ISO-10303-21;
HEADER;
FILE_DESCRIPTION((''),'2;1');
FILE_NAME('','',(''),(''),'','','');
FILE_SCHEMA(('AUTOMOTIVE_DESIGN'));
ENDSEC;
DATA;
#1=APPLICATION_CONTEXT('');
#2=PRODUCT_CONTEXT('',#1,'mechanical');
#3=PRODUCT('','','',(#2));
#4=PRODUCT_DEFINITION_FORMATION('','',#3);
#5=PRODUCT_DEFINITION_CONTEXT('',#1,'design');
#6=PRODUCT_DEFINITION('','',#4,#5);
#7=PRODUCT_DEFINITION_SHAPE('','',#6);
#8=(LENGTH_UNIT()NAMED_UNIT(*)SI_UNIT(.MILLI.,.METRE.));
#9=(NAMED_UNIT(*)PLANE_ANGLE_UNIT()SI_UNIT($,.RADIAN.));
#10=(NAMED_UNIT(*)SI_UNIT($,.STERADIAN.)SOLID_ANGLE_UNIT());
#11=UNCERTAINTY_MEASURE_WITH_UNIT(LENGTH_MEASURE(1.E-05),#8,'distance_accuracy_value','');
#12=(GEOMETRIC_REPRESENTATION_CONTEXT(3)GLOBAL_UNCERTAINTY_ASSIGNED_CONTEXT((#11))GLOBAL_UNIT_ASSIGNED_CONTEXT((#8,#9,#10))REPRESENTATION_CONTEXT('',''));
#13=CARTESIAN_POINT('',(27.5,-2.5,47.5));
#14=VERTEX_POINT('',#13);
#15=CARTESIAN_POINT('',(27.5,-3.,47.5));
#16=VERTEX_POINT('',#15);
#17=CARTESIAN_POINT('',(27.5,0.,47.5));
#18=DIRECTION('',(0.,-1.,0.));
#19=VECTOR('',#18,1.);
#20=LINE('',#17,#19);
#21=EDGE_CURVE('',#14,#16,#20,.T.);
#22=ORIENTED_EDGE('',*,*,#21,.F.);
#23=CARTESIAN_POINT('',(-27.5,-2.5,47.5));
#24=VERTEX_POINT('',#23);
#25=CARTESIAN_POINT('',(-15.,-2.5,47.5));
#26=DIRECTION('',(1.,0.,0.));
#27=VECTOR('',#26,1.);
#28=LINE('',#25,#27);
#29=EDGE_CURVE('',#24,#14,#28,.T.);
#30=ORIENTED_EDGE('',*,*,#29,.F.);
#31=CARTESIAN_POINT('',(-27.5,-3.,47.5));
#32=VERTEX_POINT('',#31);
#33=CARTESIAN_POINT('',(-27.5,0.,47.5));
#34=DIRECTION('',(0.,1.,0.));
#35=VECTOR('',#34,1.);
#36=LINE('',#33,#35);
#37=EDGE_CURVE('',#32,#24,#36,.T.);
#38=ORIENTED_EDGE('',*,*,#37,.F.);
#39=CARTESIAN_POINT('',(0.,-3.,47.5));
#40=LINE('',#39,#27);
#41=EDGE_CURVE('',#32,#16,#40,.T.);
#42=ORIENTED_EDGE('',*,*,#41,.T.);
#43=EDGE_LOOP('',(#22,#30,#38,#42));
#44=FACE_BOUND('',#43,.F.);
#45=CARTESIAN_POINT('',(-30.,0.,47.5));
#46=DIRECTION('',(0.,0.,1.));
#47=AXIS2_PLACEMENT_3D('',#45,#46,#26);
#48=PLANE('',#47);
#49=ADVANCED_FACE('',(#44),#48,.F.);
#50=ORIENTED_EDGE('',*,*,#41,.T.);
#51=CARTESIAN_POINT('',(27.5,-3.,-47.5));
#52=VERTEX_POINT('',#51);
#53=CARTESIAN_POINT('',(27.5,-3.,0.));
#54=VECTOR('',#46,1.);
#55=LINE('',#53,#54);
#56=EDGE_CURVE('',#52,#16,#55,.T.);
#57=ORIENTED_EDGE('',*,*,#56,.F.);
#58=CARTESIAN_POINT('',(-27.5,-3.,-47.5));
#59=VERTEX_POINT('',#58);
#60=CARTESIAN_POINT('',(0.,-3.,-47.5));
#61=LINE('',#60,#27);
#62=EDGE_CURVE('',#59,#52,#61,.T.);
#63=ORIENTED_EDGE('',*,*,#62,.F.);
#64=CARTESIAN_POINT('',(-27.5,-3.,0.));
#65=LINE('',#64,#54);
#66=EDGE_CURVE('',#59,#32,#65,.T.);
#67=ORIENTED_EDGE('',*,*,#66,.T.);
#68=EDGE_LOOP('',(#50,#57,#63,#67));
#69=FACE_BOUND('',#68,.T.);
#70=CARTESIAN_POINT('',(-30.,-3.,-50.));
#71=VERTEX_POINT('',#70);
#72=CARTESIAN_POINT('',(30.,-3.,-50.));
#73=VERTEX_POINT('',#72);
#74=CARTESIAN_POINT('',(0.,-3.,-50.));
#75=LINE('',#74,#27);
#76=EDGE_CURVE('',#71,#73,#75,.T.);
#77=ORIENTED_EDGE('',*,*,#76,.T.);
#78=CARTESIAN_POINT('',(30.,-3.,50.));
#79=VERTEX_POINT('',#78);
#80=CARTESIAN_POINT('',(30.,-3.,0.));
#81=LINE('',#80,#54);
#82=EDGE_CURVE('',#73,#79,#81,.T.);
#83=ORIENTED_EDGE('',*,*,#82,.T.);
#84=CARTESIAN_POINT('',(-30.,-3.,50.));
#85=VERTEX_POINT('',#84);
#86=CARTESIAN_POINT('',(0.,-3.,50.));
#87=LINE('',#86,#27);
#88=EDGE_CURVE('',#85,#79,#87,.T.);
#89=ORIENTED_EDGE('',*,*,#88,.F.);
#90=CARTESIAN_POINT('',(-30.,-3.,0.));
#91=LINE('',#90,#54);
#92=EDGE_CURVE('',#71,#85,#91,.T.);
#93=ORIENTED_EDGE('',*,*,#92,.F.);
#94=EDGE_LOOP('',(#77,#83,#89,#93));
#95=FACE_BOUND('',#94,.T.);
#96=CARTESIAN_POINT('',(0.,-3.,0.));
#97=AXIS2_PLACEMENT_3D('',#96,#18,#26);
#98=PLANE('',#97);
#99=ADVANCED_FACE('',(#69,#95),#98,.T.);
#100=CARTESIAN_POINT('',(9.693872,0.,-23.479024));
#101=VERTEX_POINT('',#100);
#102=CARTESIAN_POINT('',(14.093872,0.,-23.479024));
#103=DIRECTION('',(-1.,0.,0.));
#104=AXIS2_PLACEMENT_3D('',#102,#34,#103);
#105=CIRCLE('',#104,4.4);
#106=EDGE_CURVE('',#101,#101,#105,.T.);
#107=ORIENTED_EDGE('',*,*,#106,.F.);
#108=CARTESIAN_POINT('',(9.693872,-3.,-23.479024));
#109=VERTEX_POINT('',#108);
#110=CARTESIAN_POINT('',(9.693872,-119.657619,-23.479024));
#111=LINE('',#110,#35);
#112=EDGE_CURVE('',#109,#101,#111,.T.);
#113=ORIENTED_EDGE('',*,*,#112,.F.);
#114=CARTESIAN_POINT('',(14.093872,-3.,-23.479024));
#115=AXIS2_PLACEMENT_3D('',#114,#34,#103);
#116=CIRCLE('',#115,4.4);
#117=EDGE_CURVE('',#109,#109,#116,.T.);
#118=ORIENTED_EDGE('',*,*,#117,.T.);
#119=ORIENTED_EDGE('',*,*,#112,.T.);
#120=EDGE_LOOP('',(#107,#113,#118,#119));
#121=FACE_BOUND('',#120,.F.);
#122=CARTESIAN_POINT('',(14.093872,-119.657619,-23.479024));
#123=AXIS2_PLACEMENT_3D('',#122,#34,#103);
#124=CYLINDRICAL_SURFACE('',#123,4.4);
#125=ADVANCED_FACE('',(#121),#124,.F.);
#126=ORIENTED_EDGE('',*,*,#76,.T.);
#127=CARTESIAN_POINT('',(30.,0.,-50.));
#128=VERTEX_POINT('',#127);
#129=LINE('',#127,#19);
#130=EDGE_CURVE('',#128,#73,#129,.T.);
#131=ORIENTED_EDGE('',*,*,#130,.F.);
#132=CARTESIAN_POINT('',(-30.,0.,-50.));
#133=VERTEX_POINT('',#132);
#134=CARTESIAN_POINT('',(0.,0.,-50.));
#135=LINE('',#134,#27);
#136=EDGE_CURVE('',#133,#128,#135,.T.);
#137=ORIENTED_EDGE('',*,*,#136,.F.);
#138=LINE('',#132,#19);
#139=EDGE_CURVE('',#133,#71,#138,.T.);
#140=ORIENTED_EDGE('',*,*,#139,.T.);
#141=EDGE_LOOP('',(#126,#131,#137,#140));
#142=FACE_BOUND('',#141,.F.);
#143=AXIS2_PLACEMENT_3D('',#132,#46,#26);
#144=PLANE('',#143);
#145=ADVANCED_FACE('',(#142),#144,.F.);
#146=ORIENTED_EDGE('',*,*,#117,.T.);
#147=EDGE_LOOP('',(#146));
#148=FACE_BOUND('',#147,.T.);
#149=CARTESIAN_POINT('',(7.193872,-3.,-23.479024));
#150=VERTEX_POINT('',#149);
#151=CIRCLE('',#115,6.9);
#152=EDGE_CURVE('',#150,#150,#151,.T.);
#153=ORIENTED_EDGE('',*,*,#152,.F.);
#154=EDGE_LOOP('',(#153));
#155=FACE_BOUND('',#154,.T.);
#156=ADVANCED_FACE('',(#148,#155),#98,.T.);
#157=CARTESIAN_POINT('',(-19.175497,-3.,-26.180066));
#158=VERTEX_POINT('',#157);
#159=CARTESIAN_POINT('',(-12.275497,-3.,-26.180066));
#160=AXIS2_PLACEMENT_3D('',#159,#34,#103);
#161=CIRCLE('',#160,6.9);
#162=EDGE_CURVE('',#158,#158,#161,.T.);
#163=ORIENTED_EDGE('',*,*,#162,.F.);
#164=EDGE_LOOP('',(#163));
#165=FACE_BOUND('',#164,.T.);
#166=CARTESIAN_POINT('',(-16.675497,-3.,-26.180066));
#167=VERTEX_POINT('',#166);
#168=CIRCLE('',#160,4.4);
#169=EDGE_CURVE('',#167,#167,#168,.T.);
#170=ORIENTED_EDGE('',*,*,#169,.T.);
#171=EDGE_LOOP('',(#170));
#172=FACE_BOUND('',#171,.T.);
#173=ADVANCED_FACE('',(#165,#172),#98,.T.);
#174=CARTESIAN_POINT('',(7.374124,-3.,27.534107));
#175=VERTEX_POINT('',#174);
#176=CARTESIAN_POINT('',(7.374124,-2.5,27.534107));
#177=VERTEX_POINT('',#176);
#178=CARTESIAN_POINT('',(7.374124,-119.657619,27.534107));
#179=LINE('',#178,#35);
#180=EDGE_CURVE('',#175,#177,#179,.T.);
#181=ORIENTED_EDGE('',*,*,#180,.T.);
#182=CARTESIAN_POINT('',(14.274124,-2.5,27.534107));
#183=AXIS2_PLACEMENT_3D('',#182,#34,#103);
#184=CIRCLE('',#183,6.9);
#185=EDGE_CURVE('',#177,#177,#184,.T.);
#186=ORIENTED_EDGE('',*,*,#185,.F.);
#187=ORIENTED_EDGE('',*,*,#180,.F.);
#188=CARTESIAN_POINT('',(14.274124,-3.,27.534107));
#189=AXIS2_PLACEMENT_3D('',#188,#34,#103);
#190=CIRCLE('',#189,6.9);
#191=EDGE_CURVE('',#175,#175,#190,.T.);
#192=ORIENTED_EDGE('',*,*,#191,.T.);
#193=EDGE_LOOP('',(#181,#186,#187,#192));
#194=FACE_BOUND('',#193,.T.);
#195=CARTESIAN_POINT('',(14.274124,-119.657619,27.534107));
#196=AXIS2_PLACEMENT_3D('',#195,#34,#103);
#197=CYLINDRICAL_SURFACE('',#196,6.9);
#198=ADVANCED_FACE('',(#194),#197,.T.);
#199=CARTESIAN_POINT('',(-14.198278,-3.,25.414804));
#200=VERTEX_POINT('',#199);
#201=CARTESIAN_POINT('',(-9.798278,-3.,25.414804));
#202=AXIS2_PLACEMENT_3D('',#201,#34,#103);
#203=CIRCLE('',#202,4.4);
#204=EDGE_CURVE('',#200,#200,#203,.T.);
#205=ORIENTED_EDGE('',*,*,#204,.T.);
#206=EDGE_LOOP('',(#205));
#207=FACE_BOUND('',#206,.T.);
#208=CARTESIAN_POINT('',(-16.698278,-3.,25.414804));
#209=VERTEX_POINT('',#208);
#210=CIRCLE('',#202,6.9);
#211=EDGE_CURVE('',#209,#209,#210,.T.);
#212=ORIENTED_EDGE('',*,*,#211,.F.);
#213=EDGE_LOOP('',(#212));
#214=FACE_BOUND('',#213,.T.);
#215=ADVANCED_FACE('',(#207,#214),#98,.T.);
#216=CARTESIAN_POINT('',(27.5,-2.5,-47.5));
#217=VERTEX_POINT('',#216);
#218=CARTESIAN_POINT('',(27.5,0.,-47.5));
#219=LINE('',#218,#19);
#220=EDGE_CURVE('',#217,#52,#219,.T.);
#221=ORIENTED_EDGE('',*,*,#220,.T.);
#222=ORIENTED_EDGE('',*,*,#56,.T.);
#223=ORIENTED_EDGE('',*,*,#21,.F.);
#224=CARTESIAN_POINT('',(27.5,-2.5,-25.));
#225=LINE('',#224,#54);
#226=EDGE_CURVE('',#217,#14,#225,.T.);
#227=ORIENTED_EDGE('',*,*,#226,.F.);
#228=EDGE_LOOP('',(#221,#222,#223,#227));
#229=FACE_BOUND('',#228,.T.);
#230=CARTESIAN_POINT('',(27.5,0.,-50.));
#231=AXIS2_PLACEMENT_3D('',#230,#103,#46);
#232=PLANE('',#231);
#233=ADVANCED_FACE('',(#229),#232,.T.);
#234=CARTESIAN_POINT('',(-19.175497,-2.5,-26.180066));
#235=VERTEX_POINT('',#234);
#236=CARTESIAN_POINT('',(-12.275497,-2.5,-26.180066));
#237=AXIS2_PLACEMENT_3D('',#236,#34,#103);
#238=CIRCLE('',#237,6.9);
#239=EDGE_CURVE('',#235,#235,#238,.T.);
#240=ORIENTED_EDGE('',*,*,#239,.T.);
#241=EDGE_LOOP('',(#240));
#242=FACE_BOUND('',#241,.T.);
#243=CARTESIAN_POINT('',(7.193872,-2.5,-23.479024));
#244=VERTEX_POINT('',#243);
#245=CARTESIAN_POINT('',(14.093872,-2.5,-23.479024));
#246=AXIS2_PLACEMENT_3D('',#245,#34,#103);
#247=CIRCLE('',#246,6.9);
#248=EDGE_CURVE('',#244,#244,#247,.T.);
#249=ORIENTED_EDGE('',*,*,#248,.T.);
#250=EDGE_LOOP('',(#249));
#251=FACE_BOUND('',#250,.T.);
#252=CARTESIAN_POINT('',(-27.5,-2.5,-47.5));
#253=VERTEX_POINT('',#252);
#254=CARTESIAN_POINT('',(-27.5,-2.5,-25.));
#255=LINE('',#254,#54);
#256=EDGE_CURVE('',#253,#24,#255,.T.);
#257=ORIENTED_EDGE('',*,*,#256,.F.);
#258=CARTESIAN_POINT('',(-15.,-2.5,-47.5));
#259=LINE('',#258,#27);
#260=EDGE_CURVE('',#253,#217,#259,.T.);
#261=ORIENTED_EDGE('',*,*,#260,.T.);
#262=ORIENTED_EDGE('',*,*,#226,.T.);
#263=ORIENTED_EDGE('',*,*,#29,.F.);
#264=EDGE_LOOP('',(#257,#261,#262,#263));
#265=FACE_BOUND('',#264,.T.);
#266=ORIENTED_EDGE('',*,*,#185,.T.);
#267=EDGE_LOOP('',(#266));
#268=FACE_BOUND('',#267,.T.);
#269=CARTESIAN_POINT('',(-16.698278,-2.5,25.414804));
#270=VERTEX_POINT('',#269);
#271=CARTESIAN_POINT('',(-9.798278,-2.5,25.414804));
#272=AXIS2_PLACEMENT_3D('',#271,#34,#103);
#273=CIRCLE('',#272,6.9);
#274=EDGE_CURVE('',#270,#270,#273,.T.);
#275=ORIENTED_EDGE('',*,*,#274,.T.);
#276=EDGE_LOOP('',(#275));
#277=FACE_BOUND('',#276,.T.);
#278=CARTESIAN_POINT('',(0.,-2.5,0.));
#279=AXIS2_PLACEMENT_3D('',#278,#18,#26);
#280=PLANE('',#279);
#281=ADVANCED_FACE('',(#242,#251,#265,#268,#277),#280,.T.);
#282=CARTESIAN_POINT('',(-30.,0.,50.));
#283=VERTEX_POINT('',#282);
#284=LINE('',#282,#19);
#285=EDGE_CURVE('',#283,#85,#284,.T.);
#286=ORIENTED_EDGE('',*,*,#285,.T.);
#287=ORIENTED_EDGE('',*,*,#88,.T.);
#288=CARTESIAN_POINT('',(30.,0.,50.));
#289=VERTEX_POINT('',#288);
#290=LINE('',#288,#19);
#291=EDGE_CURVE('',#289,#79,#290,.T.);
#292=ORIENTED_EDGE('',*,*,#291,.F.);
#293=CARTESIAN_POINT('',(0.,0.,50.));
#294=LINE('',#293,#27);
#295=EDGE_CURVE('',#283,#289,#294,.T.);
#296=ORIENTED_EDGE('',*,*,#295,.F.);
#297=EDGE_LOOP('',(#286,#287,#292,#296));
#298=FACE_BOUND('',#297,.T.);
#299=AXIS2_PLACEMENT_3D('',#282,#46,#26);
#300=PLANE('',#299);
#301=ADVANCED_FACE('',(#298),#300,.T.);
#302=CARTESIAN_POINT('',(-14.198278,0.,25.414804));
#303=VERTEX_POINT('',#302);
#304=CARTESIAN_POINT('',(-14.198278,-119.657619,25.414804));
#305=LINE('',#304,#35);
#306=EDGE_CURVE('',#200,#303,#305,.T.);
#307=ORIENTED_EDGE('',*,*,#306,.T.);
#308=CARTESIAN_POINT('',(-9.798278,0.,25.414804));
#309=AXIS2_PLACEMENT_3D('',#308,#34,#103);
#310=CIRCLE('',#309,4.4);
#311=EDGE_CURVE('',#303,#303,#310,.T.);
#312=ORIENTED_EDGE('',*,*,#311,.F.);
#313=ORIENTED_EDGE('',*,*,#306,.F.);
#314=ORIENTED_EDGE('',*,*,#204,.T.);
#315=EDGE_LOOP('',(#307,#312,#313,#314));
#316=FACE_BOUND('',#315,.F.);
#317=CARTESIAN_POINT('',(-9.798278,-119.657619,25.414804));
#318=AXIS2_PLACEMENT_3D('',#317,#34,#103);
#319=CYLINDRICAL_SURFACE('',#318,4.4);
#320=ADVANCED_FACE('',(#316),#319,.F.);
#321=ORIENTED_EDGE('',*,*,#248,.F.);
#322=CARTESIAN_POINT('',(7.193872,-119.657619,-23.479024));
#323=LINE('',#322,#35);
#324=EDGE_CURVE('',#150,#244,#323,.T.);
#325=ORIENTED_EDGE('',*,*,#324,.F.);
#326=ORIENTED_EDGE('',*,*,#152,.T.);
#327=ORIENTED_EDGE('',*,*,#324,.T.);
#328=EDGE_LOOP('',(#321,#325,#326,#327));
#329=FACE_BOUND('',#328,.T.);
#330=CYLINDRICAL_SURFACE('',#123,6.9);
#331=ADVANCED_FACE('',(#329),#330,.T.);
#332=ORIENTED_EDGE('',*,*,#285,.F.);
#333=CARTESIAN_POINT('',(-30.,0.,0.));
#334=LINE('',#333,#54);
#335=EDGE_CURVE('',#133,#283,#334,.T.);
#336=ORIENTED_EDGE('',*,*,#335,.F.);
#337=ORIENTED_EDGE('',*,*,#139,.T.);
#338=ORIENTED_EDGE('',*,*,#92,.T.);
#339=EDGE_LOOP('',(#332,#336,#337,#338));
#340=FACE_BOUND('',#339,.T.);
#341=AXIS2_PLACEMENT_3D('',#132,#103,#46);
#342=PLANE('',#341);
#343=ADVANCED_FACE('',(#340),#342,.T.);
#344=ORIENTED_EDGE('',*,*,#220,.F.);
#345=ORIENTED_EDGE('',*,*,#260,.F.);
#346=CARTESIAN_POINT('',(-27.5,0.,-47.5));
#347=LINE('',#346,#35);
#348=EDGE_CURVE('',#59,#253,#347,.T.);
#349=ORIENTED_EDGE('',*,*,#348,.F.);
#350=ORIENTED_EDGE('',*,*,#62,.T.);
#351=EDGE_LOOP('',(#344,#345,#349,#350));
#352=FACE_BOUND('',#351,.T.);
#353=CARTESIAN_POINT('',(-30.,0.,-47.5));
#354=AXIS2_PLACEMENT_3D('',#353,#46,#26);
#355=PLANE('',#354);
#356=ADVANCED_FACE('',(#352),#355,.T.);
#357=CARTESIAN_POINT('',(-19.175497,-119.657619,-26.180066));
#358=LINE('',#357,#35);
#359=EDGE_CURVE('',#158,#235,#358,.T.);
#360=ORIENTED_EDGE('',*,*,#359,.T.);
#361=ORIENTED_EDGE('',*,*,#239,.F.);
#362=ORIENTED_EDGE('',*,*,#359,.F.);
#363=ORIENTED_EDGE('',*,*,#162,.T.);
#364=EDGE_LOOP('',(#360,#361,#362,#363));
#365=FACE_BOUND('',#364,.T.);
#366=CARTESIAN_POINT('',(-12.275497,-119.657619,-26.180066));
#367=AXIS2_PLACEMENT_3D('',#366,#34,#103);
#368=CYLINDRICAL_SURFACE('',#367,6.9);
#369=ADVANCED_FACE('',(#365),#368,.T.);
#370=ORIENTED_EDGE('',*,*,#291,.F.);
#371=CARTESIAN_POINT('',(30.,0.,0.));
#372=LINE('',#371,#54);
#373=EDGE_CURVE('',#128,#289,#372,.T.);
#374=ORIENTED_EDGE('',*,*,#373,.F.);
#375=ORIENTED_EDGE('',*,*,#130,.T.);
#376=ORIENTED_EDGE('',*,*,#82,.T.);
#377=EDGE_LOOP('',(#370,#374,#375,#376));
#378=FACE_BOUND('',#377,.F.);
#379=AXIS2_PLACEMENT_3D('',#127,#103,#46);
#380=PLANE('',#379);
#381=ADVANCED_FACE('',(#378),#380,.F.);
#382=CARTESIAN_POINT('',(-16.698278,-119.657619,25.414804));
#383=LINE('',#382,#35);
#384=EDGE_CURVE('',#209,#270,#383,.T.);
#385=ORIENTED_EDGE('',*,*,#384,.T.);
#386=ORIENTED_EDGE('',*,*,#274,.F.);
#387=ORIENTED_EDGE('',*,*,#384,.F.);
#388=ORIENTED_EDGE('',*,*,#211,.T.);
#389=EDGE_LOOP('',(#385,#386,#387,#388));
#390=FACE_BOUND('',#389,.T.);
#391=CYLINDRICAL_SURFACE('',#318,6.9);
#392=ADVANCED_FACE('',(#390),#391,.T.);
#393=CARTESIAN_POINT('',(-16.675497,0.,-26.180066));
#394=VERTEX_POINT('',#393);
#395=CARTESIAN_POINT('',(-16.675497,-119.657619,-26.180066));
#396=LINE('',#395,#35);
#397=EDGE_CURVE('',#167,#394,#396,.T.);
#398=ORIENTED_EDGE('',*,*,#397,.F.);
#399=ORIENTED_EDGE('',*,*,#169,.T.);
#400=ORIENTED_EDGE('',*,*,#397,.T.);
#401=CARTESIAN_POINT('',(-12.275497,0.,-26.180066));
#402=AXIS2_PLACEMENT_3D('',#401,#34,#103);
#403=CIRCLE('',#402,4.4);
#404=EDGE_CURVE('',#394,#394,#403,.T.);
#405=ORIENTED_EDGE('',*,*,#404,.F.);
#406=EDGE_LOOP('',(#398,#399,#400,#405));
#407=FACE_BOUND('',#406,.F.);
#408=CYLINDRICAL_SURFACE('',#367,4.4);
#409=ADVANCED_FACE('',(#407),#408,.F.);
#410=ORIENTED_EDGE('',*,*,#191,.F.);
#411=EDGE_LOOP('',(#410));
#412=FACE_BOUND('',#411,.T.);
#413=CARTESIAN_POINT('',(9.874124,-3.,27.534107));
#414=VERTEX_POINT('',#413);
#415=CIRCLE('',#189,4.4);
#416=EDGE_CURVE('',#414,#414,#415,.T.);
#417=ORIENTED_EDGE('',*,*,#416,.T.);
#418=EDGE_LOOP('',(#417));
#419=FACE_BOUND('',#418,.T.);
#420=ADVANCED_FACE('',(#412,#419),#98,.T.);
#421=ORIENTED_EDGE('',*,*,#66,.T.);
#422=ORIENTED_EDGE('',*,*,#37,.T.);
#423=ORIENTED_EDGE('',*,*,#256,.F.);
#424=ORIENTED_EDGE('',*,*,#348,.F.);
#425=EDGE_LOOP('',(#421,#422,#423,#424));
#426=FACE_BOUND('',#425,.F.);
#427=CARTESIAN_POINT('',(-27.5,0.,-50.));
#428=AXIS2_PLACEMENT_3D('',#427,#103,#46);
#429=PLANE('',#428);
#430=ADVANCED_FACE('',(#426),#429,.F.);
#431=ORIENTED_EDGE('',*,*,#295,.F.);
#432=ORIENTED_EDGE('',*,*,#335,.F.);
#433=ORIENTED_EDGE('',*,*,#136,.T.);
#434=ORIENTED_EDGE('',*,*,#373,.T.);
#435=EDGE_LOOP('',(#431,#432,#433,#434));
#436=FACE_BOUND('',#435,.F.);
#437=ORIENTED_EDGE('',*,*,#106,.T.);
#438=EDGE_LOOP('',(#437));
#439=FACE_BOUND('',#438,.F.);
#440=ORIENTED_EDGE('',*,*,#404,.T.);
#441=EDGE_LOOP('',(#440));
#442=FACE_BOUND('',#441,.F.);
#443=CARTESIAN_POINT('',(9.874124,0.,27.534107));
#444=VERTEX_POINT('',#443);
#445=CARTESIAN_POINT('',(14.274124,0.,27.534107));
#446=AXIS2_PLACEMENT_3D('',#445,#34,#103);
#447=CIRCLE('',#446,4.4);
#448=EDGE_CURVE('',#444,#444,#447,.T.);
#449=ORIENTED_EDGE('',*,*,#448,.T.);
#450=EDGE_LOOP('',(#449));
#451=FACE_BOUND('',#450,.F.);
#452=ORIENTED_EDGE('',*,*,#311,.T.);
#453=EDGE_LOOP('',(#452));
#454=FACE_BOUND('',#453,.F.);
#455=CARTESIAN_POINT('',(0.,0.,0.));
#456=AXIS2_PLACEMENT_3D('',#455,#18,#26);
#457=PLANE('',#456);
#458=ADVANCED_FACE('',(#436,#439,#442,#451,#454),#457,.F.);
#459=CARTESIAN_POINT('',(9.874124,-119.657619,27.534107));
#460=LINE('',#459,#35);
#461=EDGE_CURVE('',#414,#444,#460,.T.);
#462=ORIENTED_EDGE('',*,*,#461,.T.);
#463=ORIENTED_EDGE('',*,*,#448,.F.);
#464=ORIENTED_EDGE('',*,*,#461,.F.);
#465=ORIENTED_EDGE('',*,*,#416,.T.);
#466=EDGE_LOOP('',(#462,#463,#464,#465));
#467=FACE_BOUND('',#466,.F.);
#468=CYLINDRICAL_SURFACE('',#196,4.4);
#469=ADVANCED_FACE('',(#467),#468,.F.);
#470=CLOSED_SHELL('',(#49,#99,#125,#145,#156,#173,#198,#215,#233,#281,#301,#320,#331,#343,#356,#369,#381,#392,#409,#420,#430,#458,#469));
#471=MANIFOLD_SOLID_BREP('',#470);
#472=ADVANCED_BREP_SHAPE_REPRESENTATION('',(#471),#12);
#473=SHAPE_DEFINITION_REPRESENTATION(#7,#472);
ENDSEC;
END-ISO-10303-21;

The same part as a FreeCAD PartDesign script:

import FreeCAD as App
import Part
import Sketcher
Q = App.Units.Quantity


def faces_at(feature, points):
    """Names of the faces that lie closest to the given points."""
    faces = feature.Shape.Faces
    near = lambda p: min(range(len(faces)), key=lambda i: faces[i].distToShape(Part.Vertex(*p))[0])
    return sorted({f"Face{near(p) + 1}" for p in points})

doc = App.newDocument("Part")
body = doc.addObject("PartDesign::Body", "Body")

sketch1 = doc.addObject("Sketcher::SketchObject", "Sketch")
body.addObject(sketch1)
sketch1.AttachmentSupport = (doc.XZ_Plane, [""])
sketch1.MapMode = "FlatFace"
sketch1.addGeometry([
    Part.LineSegment(App.Vector(-30, 50, 0), App.Vector(-30, -50, 0)),
    Part.LineSegment(App.Vector(-30, -50, 0), App.Vector(30, -50, 0)),
    Part.LineSegment(App.Vector(30, -50, 0), App.Vector(30, 50, 0)),
    Part.LineSegment(App.Vector(30, 50, 0), App.Vector(-30, 50, 0)),
], False)
sketch1.addConstraint([
    Sketcher.Constraint("Coincident", 0, 2, 1, 1),
    Sketcher.Constraint("Coincident", 1, 2, 2, 1),
    Sketcher.Constraint("Coincident", 2, 2, 3, 1),
    Sketcher.Constraint("Coincident", 3, 2, 0, 1),
    Sketcher.Constraint("Vertical", 0),
    Sketcher.Constraint("Horizontal", 1),
    Sketcher.Constraint("Vertical", 2),
    Sketcher.Constraint("Horizontal", 3),
    Sketcher.Constraint("Symmetric", 0, 2, 2, 2, -1, 1),
    Sketcher.Constraint("DistanceX", 1, 1, 1, 2, Q("60 mm")),
    Sketcher.Constraint("DistanceY", 0, 2, 0, 1, Q("100 mm")),
])
pad1 = doc.addObject("PartDesign::Pad", "Pad")
body.addObject(pad1)
pad1.Profile = sketch1
pad1.Length = 3

sketch2 = doc.addObject("Sketcher::SketchObject", "Sketch001")
body.addObject(sketch2)
sketch2.AttachmentSupport = (doc.XZ_Plane, [""])
sketch2.MapMode = "FlatFace"
sketch2.AttachmentOffset = App.Placement(App.Vector(0, 0, 3), App.Rotation())
sketch2.addGeometry([
    Part.Circle(App.Vector(-9.8, 25.4, 0), App.Vector(0, 0, 1), 4.4),
    Part.Circle(App.Vector(14.3, 27.5, 0), App.Vector(0, 0, 1), 4.4),
    Part.Circle(App.Vector(14.1, -23.5, 0), App.Vector(0, 0, 1), 4.4),
    Part.Circle(App.Vector(-12.3, -26.2, 0), App.Vector(0, 0, 1), 4.4),
], False)
sketch2.addConstraint([
    Sketcher.Constraint("Equal", 0, 1),
    Sketcher.Constraint("Equal", 1, 2),
    Sketcher.Constraint("Equal", 2, 3),
    Sketcher.Constraint("Diameter", 0, Q("8.8 mm")),
    Sketcher.Constraint("DistanceX", 0, 3, -1, 1, Q("9.798278 mm")),
    Sketcher.Constraint("DistanceX", 2, 3, 1, 3, Q("0.180252 mm")),
    Sketcher.Constraint("DistanceY", 2, 3, 1, 3, Q("51.013131 mm")),
    Sketcher.Constraint("DistanceX", 0, 3, 2, 3, Q("23.89215 mm")),
    Sketcher.Constraint("DistanceX", 3, 3, 2, 3, Q("26.36937 mm")),
    Sketcher.Constraint("DistanceY", 3, 3, 0, 3, Q("51.59487 mm")),
    Sketcher.Constraint("DistanceY", -1, 1, 0, 3, Q("25.414804 mm")),
    Sketcher.Constraint("DistanceY", -1, 1, 1, 3, Q("27.534107 mm")),
])
doc.recompute()
hole = doc.addObject("PartDesign::Hole", "Hole")
body.addObject(hole)
hole.Profile = sketch2
hole.ThreadType = "None"
hole.Diameter = 8.8
hole.DepthType = "ThroughAll"
doc.recompute()

thickness = doc.addObject("PartDesign::Thickness", "Thickness")
body.addObject(thickness)
thickness.Base = (hole, faces_at(hole, [(0, -3, 0)]))
thickness.Value = 2.5
thickness.Reversed = True
thickness.Join = "Arc"

doc.recompute()
